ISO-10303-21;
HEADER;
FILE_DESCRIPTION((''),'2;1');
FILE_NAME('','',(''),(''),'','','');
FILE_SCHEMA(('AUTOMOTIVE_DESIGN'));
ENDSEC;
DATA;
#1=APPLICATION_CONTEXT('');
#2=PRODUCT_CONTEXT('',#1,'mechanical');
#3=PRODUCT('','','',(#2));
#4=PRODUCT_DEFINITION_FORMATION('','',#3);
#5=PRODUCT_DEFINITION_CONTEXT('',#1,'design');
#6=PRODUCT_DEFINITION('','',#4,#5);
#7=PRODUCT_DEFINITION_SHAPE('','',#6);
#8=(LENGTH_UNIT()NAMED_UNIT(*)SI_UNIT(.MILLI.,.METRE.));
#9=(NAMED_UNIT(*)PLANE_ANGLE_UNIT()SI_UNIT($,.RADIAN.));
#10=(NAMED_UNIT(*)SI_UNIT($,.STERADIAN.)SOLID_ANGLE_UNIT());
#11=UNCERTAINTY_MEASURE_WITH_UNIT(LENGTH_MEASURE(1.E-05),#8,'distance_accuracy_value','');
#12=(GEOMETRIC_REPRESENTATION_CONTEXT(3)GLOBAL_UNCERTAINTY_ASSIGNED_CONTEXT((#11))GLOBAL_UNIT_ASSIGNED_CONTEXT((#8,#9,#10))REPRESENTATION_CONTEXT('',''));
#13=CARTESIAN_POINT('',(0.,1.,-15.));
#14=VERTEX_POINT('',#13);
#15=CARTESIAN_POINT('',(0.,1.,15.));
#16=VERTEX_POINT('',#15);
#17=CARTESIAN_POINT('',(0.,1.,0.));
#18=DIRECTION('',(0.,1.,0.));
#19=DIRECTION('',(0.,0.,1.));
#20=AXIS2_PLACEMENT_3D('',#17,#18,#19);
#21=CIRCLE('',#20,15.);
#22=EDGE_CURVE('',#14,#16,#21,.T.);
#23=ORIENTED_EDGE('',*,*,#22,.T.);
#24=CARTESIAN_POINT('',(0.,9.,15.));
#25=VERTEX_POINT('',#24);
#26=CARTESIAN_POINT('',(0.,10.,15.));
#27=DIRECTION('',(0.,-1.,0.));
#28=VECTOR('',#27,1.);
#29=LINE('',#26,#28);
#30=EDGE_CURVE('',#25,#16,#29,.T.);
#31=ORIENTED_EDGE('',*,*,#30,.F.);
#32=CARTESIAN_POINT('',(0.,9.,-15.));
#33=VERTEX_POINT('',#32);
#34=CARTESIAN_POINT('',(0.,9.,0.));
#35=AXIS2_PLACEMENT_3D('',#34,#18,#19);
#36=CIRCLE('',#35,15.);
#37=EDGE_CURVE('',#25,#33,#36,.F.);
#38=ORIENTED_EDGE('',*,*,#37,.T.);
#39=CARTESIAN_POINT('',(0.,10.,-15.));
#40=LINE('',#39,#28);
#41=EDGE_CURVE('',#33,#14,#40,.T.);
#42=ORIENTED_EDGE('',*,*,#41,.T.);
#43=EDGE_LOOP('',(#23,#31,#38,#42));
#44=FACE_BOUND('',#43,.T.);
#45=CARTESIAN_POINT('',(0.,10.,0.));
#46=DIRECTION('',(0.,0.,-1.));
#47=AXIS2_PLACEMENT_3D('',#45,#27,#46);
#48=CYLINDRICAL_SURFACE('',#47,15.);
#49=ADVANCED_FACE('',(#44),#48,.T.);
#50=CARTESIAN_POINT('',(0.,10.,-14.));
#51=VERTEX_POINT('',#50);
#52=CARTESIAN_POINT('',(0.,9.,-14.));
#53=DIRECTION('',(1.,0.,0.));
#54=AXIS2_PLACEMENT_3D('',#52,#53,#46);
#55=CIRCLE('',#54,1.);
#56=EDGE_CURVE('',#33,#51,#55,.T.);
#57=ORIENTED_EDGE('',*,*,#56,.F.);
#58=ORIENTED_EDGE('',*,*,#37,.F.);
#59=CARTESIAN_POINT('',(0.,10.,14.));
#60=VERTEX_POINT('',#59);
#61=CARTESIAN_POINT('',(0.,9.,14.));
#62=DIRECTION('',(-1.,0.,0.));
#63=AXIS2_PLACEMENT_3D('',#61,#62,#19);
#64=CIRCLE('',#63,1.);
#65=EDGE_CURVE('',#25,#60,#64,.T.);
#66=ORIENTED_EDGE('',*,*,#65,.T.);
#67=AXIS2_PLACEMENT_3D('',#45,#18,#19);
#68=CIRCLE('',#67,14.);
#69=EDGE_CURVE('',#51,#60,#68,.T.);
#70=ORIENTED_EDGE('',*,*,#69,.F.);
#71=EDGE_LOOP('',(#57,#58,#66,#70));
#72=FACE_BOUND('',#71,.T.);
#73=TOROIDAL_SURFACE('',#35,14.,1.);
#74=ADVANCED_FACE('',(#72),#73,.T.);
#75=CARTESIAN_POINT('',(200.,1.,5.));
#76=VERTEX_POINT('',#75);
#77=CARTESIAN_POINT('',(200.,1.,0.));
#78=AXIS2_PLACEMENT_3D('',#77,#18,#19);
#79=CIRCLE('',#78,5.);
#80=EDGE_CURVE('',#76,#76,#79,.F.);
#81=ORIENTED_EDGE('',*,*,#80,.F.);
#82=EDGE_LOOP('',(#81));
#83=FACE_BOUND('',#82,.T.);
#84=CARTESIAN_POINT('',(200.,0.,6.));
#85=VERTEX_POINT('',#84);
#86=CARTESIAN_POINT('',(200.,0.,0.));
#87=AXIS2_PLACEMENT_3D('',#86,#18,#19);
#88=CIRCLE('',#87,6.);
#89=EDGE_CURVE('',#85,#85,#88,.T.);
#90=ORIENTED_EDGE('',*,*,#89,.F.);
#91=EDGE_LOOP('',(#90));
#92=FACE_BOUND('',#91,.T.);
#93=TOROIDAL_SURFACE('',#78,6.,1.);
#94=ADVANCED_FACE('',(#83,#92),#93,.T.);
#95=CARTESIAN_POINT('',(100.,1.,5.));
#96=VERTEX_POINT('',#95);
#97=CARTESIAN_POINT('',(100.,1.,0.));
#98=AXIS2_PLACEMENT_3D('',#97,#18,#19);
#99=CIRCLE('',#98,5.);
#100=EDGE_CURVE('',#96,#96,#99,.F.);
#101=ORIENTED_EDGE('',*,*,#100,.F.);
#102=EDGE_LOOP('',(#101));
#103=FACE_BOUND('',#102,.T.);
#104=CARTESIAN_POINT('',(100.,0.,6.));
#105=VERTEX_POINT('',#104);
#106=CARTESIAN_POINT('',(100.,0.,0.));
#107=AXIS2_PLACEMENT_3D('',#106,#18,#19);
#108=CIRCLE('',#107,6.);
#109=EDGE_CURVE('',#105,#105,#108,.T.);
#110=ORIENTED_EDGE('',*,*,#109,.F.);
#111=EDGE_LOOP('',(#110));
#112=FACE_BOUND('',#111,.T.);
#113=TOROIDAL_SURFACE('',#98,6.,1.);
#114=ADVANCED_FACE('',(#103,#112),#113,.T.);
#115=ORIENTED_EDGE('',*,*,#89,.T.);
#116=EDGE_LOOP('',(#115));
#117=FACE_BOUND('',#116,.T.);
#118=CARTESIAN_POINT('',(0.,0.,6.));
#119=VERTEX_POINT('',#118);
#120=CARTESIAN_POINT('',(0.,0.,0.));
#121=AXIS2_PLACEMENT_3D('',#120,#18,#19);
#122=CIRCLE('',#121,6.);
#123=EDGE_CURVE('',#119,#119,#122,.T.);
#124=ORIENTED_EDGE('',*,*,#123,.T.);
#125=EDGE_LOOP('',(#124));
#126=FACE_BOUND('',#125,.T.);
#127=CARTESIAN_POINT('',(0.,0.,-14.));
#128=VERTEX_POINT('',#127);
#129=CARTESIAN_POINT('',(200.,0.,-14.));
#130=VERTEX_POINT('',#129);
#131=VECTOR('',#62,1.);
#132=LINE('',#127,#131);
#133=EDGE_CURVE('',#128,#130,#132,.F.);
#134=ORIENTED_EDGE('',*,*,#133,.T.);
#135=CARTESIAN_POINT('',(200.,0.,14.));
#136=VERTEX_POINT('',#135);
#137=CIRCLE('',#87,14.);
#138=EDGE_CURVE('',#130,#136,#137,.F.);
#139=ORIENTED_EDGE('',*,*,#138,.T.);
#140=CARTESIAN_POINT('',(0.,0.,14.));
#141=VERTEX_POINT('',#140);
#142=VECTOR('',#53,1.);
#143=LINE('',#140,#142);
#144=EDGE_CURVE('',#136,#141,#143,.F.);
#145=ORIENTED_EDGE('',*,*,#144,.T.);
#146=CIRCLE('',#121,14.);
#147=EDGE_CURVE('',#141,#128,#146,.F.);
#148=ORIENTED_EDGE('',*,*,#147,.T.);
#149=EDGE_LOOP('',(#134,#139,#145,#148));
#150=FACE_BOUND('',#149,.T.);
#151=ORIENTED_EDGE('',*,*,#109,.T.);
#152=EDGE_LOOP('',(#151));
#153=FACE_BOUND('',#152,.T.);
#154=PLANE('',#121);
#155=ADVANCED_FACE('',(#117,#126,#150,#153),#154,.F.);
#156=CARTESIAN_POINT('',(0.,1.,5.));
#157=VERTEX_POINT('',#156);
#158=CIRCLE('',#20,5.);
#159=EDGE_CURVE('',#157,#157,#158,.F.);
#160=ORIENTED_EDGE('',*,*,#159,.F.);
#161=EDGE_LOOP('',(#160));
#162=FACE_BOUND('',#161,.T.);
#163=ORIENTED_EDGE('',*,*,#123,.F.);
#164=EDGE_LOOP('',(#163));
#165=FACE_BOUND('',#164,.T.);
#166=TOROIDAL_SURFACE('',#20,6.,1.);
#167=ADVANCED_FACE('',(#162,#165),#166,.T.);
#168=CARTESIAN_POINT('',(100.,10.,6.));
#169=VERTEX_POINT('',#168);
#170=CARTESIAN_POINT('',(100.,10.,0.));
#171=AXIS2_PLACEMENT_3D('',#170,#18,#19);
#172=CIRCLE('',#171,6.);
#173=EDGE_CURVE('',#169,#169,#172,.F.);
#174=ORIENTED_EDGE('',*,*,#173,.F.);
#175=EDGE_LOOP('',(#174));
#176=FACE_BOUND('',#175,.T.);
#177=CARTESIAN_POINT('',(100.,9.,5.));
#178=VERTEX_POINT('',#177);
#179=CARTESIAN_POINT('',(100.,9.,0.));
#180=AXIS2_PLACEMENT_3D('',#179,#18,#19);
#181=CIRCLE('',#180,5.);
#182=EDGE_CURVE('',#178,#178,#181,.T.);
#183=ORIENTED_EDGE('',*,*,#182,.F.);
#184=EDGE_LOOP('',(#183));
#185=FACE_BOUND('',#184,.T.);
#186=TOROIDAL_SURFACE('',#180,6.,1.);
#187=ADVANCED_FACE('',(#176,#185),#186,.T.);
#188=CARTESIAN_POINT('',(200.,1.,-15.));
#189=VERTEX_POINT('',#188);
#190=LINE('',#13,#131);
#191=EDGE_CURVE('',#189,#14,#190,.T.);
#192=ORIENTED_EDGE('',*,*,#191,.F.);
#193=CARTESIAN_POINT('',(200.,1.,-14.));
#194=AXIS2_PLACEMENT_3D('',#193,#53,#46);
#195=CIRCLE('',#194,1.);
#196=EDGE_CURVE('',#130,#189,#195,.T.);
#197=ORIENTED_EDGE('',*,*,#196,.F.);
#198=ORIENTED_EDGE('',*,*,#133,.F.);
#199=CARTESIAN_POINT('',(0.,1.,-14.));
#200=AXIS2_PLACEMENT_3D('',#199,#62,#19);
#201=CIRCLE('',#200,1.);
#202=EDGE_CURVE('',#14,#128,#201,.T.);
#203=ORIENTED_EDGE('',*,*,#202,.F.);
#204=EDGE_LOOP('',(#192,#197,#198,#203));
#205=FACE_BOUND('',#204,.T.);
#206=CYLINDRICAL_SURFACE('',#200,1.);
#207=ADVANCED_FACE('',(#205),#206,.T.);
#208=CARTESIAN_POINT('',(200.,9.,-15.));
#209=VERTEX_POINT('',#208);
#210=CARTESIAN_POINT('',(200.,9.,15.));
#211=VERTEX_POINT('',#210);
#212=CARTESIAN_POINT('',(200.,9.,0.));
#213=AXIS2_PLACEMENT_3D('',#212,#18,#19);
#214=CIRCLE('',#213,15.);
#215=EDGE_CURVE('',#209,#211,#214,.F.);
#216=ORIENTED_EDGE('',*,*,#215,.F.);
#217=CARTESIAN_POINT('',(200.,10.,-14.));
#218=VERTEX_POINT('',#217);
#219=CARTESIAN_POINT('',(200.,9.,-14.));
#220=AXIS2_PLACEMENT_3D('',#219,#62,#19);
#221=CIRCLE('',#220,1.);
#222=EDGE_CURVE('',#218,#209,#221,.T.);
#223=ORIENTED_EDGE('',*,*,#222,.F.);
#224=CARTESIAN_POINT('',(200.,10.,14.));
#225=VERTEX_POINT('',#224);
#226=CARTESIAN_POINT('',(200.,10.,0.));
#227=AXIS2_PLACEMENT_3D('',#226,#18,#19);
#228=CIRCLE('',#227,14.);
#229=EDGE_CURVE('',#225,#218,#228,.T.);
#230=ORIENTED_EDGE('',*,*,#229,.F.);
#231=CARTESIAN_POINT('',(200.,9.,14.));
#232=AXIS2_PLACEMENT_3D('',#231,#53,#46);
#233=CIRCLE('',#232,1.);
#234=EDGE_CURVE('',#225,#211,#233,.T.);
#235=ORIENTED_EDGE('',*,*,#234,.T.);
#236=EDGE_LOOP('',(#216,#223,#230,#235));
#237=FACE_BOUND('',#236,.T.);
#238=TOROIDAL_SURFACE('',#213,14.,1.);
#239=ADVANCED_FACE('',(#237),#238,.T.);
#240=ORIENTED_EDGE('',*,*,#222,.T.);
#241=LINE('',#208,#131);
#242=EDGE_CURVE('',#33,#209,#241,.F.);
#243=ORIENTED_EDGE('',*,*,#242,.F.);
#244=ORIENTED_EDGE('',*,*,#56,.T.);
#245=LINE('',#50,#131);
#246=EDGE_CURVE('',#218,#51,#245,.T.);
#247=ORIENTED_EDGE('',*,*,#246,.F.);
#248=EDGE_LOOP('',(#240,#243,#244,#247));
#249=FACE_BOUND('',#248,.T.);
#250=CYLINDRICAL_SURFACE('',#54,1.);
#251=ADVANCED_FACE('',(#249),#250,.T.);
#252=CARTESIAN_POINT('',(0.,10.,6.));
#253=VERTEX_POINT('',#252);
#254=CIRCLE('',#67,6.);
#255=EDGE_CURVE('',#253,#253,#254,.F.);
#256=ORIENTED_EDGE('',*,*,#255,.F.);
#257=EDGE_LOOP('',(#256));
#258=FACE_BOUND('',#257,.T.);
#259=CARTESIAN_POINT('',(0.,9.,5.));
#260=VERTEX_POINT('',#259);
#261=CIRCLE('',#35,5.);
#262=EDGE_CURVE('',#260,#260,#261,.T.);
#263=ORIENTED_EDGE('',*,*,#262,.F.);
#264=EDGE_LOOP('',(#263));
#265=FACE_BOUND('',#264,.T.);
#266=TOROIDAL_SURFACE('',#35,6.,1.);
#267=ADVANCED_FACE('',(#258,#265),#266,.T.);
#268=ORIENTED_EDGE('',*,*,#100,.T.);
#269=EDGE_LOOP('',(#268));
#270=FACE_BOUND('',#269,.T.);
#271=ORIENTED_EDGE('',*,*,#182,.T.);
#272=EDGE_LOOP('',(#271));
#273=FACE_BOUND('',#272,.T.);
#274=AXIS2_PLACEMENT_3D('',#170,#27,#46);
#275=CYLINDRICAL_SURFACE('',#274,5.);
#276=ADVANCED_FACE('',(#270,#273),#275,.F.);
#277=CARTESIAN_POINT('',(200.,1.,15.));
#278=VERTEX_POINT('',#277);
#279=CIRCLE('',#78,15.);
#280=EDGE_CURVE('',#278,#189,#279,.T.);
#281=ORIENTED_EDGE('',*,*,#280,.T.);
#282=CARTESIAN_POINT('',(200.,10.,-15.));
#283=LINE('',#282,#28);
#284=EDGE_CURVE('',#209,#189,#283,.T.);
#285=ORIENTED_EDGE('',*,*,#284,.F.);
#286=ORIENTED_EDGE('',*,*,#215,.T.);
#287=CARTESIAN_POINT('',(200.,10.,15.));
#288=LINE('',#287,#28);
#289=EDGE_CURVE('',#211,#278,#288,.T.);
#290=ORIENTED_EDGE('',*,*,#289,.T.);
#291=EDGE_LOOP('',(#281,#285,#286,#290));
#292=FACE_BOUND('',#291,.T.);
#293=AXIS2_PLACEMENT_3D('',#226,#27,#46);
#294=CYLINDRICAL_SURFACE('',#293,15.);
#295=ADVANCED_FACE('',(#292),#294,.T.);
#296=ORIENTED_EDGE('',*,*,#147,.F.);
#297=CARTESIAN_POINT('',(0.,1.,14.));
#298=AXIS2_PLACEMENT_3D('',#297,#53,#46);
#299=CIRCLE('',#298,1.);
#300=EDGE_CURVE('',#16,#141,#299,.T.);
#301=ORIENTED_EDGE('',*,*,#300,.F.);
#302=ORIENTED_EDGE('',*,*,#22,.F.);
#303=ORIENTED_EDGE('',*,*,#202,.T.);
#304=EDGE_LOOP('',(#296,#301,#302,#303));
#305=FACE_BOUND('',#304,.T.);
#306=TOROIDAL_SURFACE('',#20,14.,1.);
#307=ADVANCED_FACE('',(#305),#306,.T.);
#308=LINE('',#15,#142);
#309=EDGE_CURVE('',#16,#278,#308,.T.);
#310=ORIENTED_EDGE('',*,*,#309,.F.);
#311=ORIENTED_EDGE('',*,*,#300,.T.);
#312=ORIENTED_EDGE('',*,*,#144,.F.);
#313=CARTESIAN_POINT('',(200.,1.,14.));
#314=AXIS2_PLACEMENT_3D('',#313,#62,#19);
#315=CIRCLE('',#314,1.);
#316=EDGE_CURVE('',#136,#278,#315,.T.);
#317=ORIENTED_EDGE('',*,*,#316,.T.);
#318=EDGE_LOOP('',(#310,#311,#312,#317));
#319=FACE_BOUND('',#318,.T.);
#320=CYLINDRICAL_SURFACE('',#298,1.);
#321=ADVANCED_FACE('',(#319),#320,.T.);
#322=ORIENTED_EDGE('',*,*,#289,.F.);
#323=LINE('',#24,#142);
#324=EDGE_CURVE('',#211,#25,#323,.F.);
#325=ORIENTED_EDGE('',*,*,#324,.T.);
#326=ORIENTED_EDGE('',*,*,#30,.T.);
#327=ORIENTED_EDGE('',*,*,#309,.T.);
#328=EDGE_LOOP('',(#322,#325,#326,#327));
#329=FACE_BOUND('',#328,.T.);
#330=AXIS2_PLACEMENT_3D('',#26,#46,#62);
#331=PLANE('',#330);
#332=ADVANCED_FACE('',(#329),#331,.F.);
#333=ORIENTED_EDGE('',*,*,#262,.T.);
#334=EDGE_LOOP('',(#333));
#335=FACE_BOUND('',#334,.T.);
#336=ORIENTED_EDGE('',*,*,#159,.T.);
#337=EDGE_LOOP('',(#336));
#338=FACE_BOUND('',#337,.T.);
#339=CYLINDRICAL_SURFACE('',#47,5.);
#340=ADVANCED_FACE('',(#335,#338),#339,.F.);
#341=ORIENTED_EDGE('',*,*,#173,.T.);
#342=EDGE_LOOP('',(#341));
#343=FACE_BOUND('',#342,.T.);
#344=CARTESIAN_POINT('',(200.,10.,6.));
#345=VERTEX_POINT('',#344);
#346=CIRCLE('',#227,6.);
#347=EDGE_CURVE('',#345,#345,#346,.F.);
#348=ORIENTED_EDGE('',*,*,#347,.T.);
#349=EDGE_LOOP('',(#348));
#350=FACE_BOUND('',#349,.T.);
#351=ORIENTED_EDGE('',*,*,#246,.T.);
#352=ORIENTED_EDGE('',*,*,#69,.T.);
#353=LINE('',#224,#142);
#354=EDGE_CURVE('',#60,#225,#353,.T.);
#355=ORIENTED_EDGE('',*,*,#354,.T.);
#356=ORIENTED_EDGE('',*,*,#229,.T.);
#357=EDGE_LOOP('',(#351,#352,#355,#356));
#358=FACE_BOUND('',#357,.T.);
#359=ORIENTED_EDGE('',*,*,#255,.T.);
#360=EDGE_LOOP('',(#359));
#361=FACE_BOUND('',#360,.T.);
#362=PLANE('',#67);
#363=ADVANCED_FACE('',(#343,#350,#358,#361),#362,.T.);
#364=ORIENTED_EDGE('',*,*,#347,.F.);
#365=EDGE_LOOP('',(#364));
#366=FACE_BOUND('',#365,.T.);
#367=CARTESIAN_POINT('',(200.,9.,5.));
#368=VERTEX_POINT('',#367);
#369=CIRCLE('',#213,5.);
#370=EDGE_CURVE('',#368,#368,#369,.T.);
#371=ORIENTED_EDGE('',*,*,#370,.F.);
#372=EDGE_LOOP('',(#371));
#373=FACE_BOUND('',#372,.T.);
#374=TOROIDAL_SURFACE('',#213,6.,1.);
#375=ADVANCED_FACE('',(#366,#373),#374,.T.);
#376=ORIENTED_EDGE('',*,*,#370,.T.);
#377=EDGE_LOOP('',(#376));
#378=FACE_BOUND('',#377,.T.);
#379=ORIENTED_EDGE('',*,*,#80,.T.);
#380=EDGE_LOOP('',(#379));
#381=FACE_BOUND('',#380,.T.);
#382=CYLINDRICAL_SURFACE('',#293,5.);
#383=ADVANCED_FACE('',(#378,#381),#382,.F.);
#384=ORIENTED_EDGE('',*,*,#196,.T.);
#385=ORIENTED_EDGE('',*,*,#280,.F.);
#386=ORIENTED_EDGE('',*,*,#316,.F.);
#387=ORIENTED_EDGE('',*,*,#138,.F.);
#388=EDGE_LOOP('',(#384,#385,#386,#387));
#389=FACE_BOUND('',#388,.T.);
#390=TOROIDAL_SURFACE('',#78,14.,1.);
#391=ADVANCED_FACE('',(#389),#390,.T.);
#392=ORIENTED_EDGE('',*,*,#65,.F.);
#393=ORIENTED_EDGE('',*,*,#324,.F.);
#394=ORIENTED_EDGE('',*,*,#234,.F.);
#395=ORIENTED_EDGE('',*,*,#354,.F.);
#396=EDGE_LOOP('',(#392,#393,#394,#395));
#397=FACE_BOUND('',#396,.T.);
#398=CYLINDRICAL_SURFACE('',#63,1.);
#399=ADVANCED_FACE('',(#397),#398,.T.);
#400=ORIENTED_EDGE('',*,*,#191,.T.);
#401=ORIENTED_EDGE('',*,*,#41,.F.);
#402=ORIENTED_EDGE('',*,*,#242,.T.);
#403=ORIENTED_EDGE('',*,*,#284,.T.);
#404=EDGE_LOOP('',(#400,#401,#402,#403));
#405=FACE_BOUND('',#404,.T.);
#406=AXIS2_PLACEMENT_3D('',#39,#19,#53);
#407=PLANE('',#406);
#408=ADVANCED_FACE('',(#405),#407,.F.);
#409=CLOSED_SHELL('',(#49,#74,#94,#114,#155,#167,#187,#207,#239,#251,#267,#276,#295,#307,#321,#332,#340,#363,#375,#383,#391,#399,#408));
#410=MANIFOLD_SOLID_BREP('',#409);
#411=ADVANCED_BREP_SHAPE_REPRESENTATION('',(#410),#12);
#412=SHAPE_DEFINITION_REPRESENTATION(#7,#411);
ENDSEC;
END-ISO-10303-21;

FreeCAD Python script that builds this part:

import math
import FreeCAD as App
import Part
import Sketcher
from FreeCAD import Vector
Q = App.Units.Quantity


def edges_at(feature, points):
    """Names of the edges that pass closest to the given points."""
    edges = feature.Shape.Edges
    near = lambda p: min(range(len(edges)), key=lambda i: edges[i].distToShape(Part.Vertex(*p))[0])
    return sorted({f"Edge{near(p) + 1}" for p in points})

doc = App.newDocument("Part")
params = doc.addObject("Spreadsheet::Sheet", "Params")
for row, (alias, value) in enumerate([
    ("sketch1_diameter", "10 mm"),
    ("sketch1_radius", "15 mm"),
    ("sketch1_width", "200 mm"),
    ("pad1_length", "10 mm"),
    ("fillet_radius", "1 mm"),
    ("fillet2_radius", "1 mm"),
], start=1):
    params.set(f"A{row}", alias)
    params.set(f"B{row}", "=" + value)
    params.setAlias(f"B{row}", alias)

body = doc.addObject("PartDesign::Body", "Body")

# Sketch on XZ plane
sketch1 = body.newObject("Sketcher::SketchObject", "Sketch")
sketch1.AttachmentSupport = (doc.getObject("XZ_Plane"), [""])
sketch1.MapMode = "FlatFace"
sketch1.addGeometry(Part.LineSegment(Vector(200, -15, 0), Vector(0, -15, 0)), False)
sketch1.addGeometry(Part.ArcOfCircle(Part.Circle(Vector(0, 0, 0), Vector(0, 0, 1), 15), math.radians(90), math.radians(270)), False)
sketch1.addGeometry(Part.LineSegment(Vector(0, 15, 0), Vector(200, 15, 0)), False)
sketch1.addGeometry(Part.ArcOfCircle(Part.Circle(Vector(200, 0, 0), Vector(0, 0, 1), 15), math.radians(-90), math.radians(90)), False)
sketch1.addGeometry(Part.Circle(Vector(200, 0, 0), Vector(0, 0, 1), 5), False)
sketch1.addGeometry(Part.Circle(Vector(100, 0, 0), Vector(0, 0, 1), 5), False)
sketch1.addGeometry(Part.Circle(Vector(0, 0, 0), Vector(0, 0, 1), 5), False)
sketch1.addConstraint(Sketcher.Constraint("Tangent", 0, 2, 1, 2))
sketch1.addConstraint(Sketcher.Constraint("Tangent", 1, 1, 2, 1))
sketch1.addConstraint(Sketcher.Constraint("Tangent", 2, 2, 3, 2))
sketch1.addConstraint(Sketcher.Constraint("Tangent", 3, 1, 0, 1))
sketch1.addConstraint(Sketcher.Constraint("Horizontal", 0))
sketch1.addConstraint(Sketcher.Constraint("Horizontal", 2))
sketch1.addConstraint(Sketcher.Constraint("Coincident", 1, 3, -1, 1))
sketch1.addConstraint(Sketcher.Constraint("Coincident", 6, 3, -1, 1))
sketch1.addConstraint(Sketcher.Constraint("Coincident", 4, 3, 3, 3))
sketch1.addConstraint(Sketcher.Constraint("Equal", 4, 5))
sketch1.addConstraint(Sketcher.Constraint("Equal", 5, 6))
sketch1.addConstraint(Sketcher.Constraint("PointOnObject", 5, 3, -1))
sketch1.addConstraint(Sketcher.Constraint("Diameter", 4, Q("10 mm")))
sketch1.addConstraint(Sketcher.Constraint("Radius", 1, Q("15 mm")))
sketch1.addConstraint(Sketcher.Constraint("DistanceX", 0, 2, 0, 1, Q("200 mm")))
sketch1.addConstraint(Sketcher.Constraint("DistanceX", -1, 1, 5, 3, Q("100 mm")))
sketch1.setExpression("Constraints[12]", "Params.sketch1_diameter")
sketch1.setExpression("Constraints[13]", "Params.sketch1_radius")
sketch1.setExpression("Constraints[14]", "Params.sketch1_width")
pad1 = body.newObject("PartDesign::Pad", "Pad")
pad1.Profile = sketch1
pad1.setExpression("Length", "Params.pad1_length")
pad1.Reversed = True
doc.recompute()

fillet = body.newObject("PartDesign::Fillet", "Fillet")
fillet.Base = (pad1, edges_at(pad1, [
    (200, 0, -5),
    (215, 10, 0),
    (100, 0, -5),
    (100, 10, -15),
    (0, 0, -5),
    (-15, 10, 0),
    (100, 0, -15),
    (215, 0, 0),
    (100, 0, 15),
    (-15, 0, 0),
    (100, 10, 15),
]))
fillet.setExpression("Radius", "Params.fillet_radius")
doc.recompute()

fillet2 = body.newObject("PartDesign::Fillet", "Fillet001")
fillet2.Base = (fillet, edges_at(fillet, [(200, 10, -5), (100, 10, -5), (0, 10, -5)]))
fillet2.setExpression("Radius", "Params.fillet2_radius")

doc.recompute()
